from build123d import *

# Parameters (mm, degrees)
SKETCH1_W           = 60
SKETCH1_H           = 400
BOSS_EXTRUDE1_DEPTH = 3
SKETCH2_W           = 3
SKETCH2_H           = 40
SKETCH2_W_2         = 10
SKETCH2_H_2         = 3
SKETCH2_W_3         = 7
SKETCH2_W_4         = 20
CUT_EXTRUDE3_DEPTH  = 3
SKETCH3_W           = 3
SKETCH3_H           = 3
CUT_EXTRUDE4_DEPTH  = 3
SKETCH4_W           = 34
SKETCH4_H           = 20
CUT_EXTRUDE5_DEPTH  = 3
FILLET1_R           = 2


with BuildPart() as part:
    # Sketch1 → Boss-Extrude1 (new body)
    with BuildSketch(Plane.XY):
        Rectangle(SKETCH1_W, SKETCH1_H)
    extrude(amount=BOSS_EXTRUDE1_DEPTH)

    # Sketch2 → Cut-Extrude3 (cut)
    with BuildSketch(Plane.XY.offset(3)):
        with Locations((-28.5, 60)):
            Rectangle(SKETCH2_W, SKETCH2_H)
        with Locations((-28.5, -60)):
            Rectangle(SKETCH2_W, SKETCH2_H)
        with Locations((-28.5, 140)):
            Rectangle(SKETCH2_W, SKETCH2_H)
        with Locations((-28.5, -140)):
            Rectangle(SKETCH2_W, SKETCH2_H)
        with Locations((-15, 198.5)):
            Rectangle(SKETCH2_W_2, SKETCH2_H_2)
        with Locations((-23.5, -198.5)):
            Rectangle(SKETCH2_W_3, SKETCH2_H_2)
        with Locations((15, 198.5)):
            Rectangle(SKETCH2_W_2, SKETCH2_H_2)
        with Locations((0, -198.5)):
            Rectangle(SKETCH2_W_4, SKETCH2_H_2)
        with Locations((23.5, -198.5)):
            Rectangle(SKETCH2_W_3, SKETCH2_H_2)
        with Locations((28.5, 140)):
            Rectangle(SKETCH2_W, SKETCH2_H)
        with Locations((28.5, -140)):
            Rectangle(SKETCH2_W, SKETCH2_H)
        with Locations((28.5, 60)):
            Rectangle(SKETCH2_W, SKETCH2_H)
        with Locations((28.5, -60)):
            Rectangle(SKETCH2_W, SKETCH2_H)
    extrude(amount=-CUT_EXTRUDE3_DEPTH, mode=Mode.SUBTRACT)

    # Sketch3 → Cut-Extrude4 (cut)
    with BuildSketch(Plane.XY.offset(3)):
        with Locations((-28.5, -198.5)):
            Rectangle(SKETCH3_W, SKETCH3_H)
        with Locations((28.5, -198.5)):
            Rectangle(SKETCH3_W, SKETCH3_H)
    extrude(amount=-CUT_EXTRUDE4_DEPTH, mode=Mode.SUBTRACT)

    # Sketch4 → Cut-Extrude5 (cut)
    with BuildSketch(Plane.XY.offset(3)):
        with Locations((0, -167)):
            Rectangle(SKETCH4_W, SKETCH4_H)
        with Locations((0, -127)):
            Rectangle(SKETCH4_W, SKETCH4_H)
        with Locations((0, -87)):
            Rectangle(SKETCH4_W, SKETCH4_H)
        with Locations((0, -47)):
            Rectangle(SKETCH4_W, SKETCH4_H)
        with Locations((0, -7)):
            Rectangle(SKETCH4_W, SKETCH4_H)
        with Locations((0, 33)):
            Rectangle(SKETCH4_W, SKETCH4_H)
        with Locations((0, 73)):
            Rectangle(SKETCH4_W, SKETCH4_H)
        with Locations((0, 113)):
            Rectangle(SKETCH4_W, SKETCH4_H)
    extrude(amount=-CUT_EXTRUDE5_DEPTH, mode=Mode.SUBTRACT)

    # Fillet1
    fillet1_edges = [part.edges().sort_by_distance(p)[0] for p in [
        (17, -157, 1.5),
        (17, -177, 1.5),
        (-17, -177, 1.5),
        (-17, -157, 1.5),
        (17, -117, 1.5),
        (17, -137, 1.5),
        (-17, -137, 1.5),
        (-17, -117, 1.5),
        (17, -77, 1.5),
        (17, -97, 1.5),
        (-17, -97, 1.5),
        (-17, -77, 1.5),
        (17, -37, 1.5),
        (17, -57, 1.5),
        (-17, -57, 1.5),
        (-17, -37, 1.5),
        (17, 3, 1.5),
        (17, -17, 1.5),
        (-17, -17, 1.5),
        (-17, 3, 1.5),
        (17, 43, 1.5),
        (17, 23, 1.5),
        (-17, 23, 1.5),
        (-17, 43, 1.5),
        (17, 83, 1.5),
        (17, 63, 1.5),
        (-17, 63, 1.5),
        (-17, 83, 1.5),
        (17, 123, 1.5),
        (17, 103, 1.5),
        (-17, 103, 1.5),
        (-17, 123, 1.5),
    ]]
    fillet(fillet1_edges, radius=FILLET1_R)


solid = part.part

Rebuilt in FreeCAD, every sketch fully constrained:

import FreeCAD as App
import Part
import Sketcher
Q = App.Units.Quantity


def edges_at(feature, points):
    """Names of the edges that pass closest to the given points."""
    edges = feature.Shape.Edges
    near = lambda p: min(range(len(edges)), key=lambda i: edges[i].distToShape(Part.Vertex(*p))[0])
    return sorted({f"Edge{near(p) + 1}" for p in points})

doc = App.newDocument("Part")
body = doc.addObject("PartDesign::Body", "Body")

sketch1 = body.newObject("Sketcher::SketchObject", "Sketch")
sketch1.AttachmentSupport = (doc.getObject("XY_Plane"), [""])
sketch1.MapMode = "FlatFace"
sketch1.addGeometry(Part.LineSegment(App.Vector(-30, 200, 0), App.Vector(-30, -200, 0)), False)
sketch1.addGeometry(Part.LineSegment(App.Vector(-30, -200, 0), App.Vector(30, -200, 0)), False)
sketch1.addGeometry(Part.LineSegment(App.Vector(30, -200, 0), App.Vector(30, 200, 0)), False)
sketch1.addGeometry(Part.LineSegment(App.Vector(30, 200, 0), App.Vector(-30, 200, 0)), False)
sketch1.addConstraint(Sketcher.Constraint("Coincident", 0, 2, 1, 1))
sketch1.addConstraint(Sketcher.Constraint("Coincident", 1, 2, 2, 1))
sketch1.addConstraint(Sketcher.Constraint("Coincident", 2, 2, 3, 1))
sketch1.addConstraint(Sketcher.Constraint("Coincident", 3, 2, 0, 1))
sketch1.addConstraint(Sketcher.Constraint("Vertical", 0))
sketch1.addConstraint(Sketcher.Constraint("Horizontal", 1))
sketch1.addConstraint(Sketcher.Constraint("Vertical", 2))
sketch1.addConstraint(Sketcher.Constraint("Horizontal", 3))
sketch1.addConstraint(Sketcher.Constraint("Symmetric", 0, 2, 2, 2, -1, 1))
sketch1.addConstraint(Sketcher.Constraint("DistanceX", 1, 1, 1, 2, Q("60 mm")))
sketch1.addConstraint(Sketcher.Constraint("DistanceY", 0, 2, 0, 1, Q("400 mm")))
pad1 = body.newObject("PartDesign::Pad", "Pad")
pad1.Profile = sketch1
pad1.Length = 3

sketch2 = body.newObject("Sketcher::SketchObject", "Sketch001")
sketch2.AttachmentSupport = (doc.getObject("XY_Plane"), [""])
sketch2.MapMode = "FlatFace"
sketch2.AttachmentOffset = App.Placement(App.Vector(0, 0, 3), App.Rotation())
sketch2.addGeometry(Part.LineSegment(App.Vector(-30, 80, 0), App.Vector(-30, 40, 0)), False)
sketch2.addGeometry(Part.LineSegment(App.Vector(-30, 40, 0), App.Vector(-27, 40, 0)), False)
sketch2.addGeometry(Part.LineSegment(App.Vector(-27, 40, 0), App.Vector(-27, 80, 0)), False)
sketch2.addGeometry(Part.LineSegment(App.Vector(-27, 80, 0), App.Vector(-30, 80, 0)), False)
sketch2.addGeometry(Part.LineSegment(App.Vector(-30, -40, 0), App.Vector(-30, -80, 0)), False)
sketch2.addGeometry(Part.LineSegment(App.Vector(-30, -80, 0), App.Vector(-27, -80, 0)), False)
sketch2.addGeometry(Part.LineSegment(App.Vector(-27, -80, 0), App.Vector(-27, -40, 0)), False)
sketch2.addGeometry(Part.LineSegment(App.Vector(-27, -40, 0), App.Vector(-30, -40, 0)), False)
sketch2.addGeometry(Part.LineSegment(App.Vector(-30, 160, 0), App.Vector(-30, 120, 0)), False)
sketch2.addGeometry(Part.LineSegment(App.Vector(-30, 120, 0), App.Vector(-27, 120, 0)), False)
sketch2.addGeometry(Part.LineSegment(App.Vector(-27, 120, 0), App.Vector(-27, 160, 0)), False)
sketch2.addGeometry(Part.LineSegment(App.Vector(-27, 160, 0), App.Vector(-30, 160, 0)), False)
sketch2.addGeometry(Part.LineSegment(App.Vector(-30, -120, 0), App.Vector(-30, -160, 0)), False)
sketch2.addGeometry(Part.LineSegment(App.Vector(-30, -160, 0), App.Vector(-27, -160, 0)), False)
sketch2.addGeometry(Part.LineSegment(App.Vector(-27, -160, 0), App.Vector(-27, -120, 0)), False)
sketch2.addGeometry(Part.LineSegment(App.Vector(-27, -120, 0), App.Vector(-30, -120, 0)), False)
sketch2.addGeometry(Part.LineSegment(App.Vector(-20, 200, 0), App.Vector(-20, 197, 0)), False)
sketch2.addGeometry(Part.LineSegment(App.Vector(-20, 197, 0), App.Vector(-10, 197, 0)), False)
sketch2.addGeometry(Part.LineSegment(App.Vector(-10, 197, 0), App.Vector(-10, 200, 0)), False)
sketch2.addGeometry(Part.LineSegment(App.Vector(-10, 200, 0), App.Vector(-20, 200, 0)), False)
sketch2.addGeometry(Part.LineSegment(App.Vector(-27, -197, 0), App.Vector(-27, -200, 0)), False)
sketch2.addGeometry(Part.LineSegment(App.Vector(-27, -200, 0), App.Vector(-20, -200, 0)), False)
sketch2.addGeometry(Part.LineSegment(App.Vector(-20, -200, 0), App.Vector(-20, -197, 0)), False)
sketch2.addGeometry(Part.LineSegment(App.Vector(-20, -197, 0), App.Vector(-27, -197, 0)), False)
sketch2.addGeometry(Part.LineSegment(App.Vector(10, 200, 0), App.Vector(10, 197, 0)), False)
sketch2.addGeometry(Part.LineSegment(App.Vector(10, 197, 0), App.Vector(20, 197, 0)), False)
sketch2.addGeometry(Part.LineSegment(App.Vector(20, 197, 0), App.Vector(20, 200, 0)), False)
sketch2.addGeometry(Part.LineSegment(App.Vector(20, 200, 0), App.Vector(10, 200, 0)), False)
sketch2.addGeometry(Part.LineSegment(App.Vector(-10, -197, 0), App.Vector(-10, -200, 0)), False)
sketch2.addGeometry(Part.LineSegment(App.Vector(-10, -200, 0), App.Vector(10, -200, 0)), False)
sketch2.addGeometry(Part.LineSegment(App.Vector(10, -200, 0), App.Vector(10, -197, 0)), False)
sketch2.addGeometry(Part.LineSegment(App.Vector(10, -197, 0), App.Vector(-10, -197, 0)), False)
sketch2.addGeometry(Part.LineSegment(App.Vector(20, -197, 0), App.Vector(20, -200, 0)), False)
sketch2.addGeometry(Part.LineSegment(App.Vector(20, -200, 0), App.Vector(27, -200, 0)), False)
sketch2.addGeometry(Part.LineSegment(App.Vector(27, -200, 0), App.Vector(27, -197, 0)), False)
sketch2.addGeometry(Part.LineSegment(App.Vector(27, -197, 0), App.Vector(20, -197, 0)), False)
sketch2.addGeometry(Part.LineSegment(App.Vector(27, 160, 0), App.Vector(27, 120, 0)), False)
sketch2.addGeometry(Part.LineSegment(App.Vector(27, 120, 0), App.Vector(30, 120, 0)), False)
sketch2.addGeometry(Part.LineSegment(App.Vector(30, 120, 0), App.Vector(30, 160, 0)), False)
sketch2.addGeometry(Part.LineSegment(App.Vector(30, 160, 0), App.Vector(27, 160, 0)), False)
sketch2.addGeometry(Part.LineSegment(App.Vector(27, -120, 0), App.Vector(27, -160, 0)), False)
sketch2.addGeometry(Part.LineSegment(App.Vector(27, -160, 0), App.Vector(30, -160, 0)), False)
sketch2.addGeometry(Part.LineSegment(App.Vector(30, -160, 0), App.Vector(30, -120, 0)), False)
sketch2.addGeometry(Part.LineSegment(App.Vector(30, -120, 0), App.Vector(27, -120, 0)), False)
sketch2.addGeometry(Part.LineSegment(App.Vector(27, 80, 0), App.Vector(27, 40, 0)), False)
sketch2.addGeometry(Part.LineSegment(App.Vector(27, 40, 0), App.Vector(30, 40, 0)), False)
sketch2.addGeometry(Part.LineSegment(App.Vector(30, 40, 0), App.Vector(30, 80, 0)), False)
sketch2.addGeometry(Part.LineSegment(App.Vector(30, 80, 0), App.Vector(27, 80, 0)), False)
sketch2.addGeometry(Part.LineSegment(App.Vector(27, -40, 0), App.Vector(27, -80, 0)), False)
sketch2.addGeometry(Part.LineSegment(App.Vector(27, -80, 0), App.Vector(30, -80, 0)), False)
sketch2.addGeometry(Part.LineSegment(App.Vector(30, -80, 0), App.Vector(30, -40, 0)), False)
sketch2.addGeometry(Part.LineSegment(App.Vector(30, -40, 0), App.Vector(27, -40, 0)), False)
sketch2.addConstraint(Sketcher.Constraint("Coincident", 0, 2, 1, 1))
sketch2.addConstraint(Sketcher.Constraint("Coincident", 1, 2, 2, 1))
sketch2.addConstraint(Sketcher.Constraint("Coincident", 2, 2, 3, 1))
sketch2.addConstraint(Sketcher.Constraint("Coincident", 3, 2, 0, 1))
sketch2.addConstraint(Sketcher.Constraint("Coincident", 4, 2, 5, 1))
sketch2.addConstraint(Sketcher.Constraint("Coincident", 5, 2, 6, 1))
sketch2.addConstraint(Sketcher.Constraint("Coincident", 6, 2, 7, 1))
sketch2.addConstraint(Sketcher.Constraint("Coincident", 7, 2, 4, 1))
sketch2.addConstraint(Sketcher.Constraint("Coincident", 8, 2, 9, 1))
sketch2.addConstraint(Sketcher.Constraint("Coincident", 9, 2, 10, 1))
sketch2.addConstraint(Sketcher.Constraint("Coincident", 10, 2, 11, 1))
sketch2.addConstraint(Sketcher.Constraint("Coincident", 11, 2, 8, 1))
sketch2.addConstraint(Sketcher.Constraint("Coincident", 12, 2, 13, 1))
sketch2.addConstraint(Sketcher.Constraint("Coincident", 13, 2, 14, 1))
sketch2.addConstraint(Sketcher.Constraint("Coincident", 14, 2, 15, 1))
sketch2.addConstraint(Sketcher.Constraint("Coincident", 15, 2, 12, 1))
sketch2.addConstraint(Sketcher.Constraint("Coincident", 16, 2, 17, 1))
sketch2.addConstraint(Sketcher.Constraint("Coincident", 17, 2, 18, 1))
sketch2.addConstraint(Sketcher.Constraint("Coincident", 18, 2, 19, 1))
sketch2.addConstraint(Sketcher.Constraint("Coincident", 19, 2, 16, 1))
sketch2.addConstraint(Sketcher.Constraint("Coincident", 20, 2, 21, 1))
sketch2.addConstraint(Sketcher.Constraint("Coincident", 21, 2, 22, 1))
sketch2.addConstraint(Sketcher.Constraint("Coincident", 22, 2, 23, 1))
sketch2.addConstraint(Sketcher.Constraint("Coincident", 23, 2, 20, 1))
sketch2.addConstraint(Sketcher.Constraint("Coincident", 24, 2, 25, 1))
sketch2.addConstraint(Sketcher.Constraint("Coincident", 25, 2, 26, 1))
sketch2.addConstraint(Sketcher.Constraint("Coincident", 26, 2, 27, 1))
sketch2.addConstraint(Sketcher.Constraint("Coincident", 27, 2, 24, 1))
sketch2.addConstraint(Sketcher.Constraint("Coincident", 28, 2, 29, 1))
sketch2.addConstraint(Sketcher.Constraint("Coincident", 29, 2, 30, 1))
sketch2.addConstraint(Sketcher.Constraint("Coincident", 30, 2, 31, 1))
sketch2.addConstraint(Sketcher.Constraint("Coincident", 31, 2, 28, 1))
sketch2.addConstraint(Sketcher.Constraint("Coincident", 32, 2, 33, 1))
sketch2.addConstraint(Sketcher.Constraint("Coincident", 33, 2, 34, 1))
sketch2.addConstraint(Sketcher.Constraint("Coincident", 34, 2, 35, 1))
sketch2.addConstraint(Sketcher.Constraint("Coincident", 35, 2, 32, 1))
sketch2.addConstraint(Sketcher.Constraint("Coincident", 36, 2, 37, 1))
sketch2.addConstraint(Sketcher.Constraint("Coincident", 37, 2, 38, 1))
sketch2.addConstraint(Sketcher.Constraint("Coincident", 38, 2, 39, 1))
sketch2.addConstraint(Sketcher.Constraint("Coincident", 39, 2, 36, 1))
sketch2.addConstraint(Sketcher.Constraint("Coincident", 40, 2, 41, 1))
sketch2.addConstraint(Sketcher.Constraint("Coincident", 41, 2, 42, 1))
sketch2.addConstraint(Sketcher.Constraint("Coincident", 42, 2, 43, 1))
sketch2.addConstraint(Sketcher.Constraint("Coincident", 43, 2, 40, 1))
sketch2.addConstraint(Sketcher.Constraint("Coincident", 44, 2, 45, 1))
sketch2.addConstraint(Sketcher.Constraint("Coincident", 45, 2, 46, 1))
sketch2.addConstraint(Sketcher.Constraint("Coincident", 46, 2, 47, 1))
sketch2.addConstraint(Sketcher.Constraint("Coincident", 47, 2, 44, 1))
sketch2.addConstraint(Sketcher.Constraint("Coincident", 48, 2, 49, 1))
sketch2.addConstraint(Sketcher.Constraint("Coincident", 49, 2, 50, 1))
sketch2.addConstraint(Sketcher.Constraint("Coincident", 50, 2, 51, 1))
sketch2.addConstraint(Sketcher.Constraint("Coincident", 51, 2, 48, 1))
sketch2.addConstraint(Sketcher.Constraint("Vertical", 0))
sketch2.addConstraint(Sketcher.Constraint("Horizontal", 1))
sketch2.addConstraint(Sketcher.Constraint("Vertical", 2))
sketch2.addConstraint(Sketcher.Constraint("Horizontal", 3))
sketch2.addConstraint(Sketcher.Constraint("Vertical", 4))
sketch2.addConstraint(Sketcher.Constraint("Horizontal", 5))
sketch2.addConstraint(Sketcher.Constraint("Vertical", 6))
sketch2.addConstraint(Sketcher.Constraint("Horizontal", 7))
sketch2.addConstraint(Sketcher.Constraint("Vertical", 8))
sketch2.addConstraint(Sketcher.Constraint("Horizontal", 9))
sketch2.addConstraint(Sketcher.Constraint("Vertical", 10))
sketch2.addConstraint(Sketcher.Constraint("Horizontal", 11))
sketch2.addConstraint(Sketcher.Constraint("Vertical", 12))
sketch2.addConstraint(Sketcher.Constraint("Horizontal", 13))
sketch2.addConstraint(Sketcher.Constraint("Vertical", 14))
sketch2.addConstraint(Sketcher.Constraint("Horizontal", 15))
sketch2.addConstraint(Sketcher.Constraint("Vertical", 16))
sketch2.addConstraint(Sketcher.Constraint("Horizontal", 17))
sketch2.addConstraint(Sketcher.Constraint("Vertical", 18))
sketch2.addConstraint(Sketcher.Constraint("Horizontal", 19))
sketch2.addConstraint(Sketcher.Constraint("Vertical", 20))
sketch2.addConstraint(Sketcher.Constraint("Horizontal", 21))
sketch2.addConstraint(Sketcher.Constraint("Vertical", 22))
sketch2.addConstraint(Sketcher.Constraint("Horizontal", 23))
sketch2.addConstraint(Sketcher.Constraint("Vertical", 24))
sketch2.addConstraint(Sketcher.Constraint("Horizontal", 25))
sketch2.addConstraint(Sketcher.Constraint("Vertical", 26))
sketch2.addConstraint(Sketcher.Constraint("Horizontal", 27))
sketch2.addConstraint(Sketcher.Constraint("Vertical", 28))
sketch2.addConstraint(Sketcher.Constraint("Horizontal", 29))
sketch2.addConstraint(Sketcher.Constraint("Vertical", 30))
sketch2.addConstraint(Sketcher.Constraint("Horizontal", 31))
sketch2.addConstraint(Sketcher.Constraint("Vertical", 32))
sketch2.addConstraint(Sketcher.Constraint("Horizontal", 33))
sketch2.addConstraint(Sketcher.Constraint("Vertical", 34))
sketch2.addConstraint(Sketcher.Constraint("Horizontal", 35))
sketch2.addConstraint(Sketcher.Constraint("Vertical", 36))
sketch2.addConstraint(Sketcher.Constraint("Horizontal", 37))
sketch2.addConstraint(Sketcher.Constraint("Vertical", 38))
sketch2.addConstraint(Sketcher.Constraint("Horizontal", 39))
sketch2.addConstraint(Sketcher.Constraint("Vertical", 40))
sketch2.addConstraint(Sketcher.Constraint("Horizontal", 41))
sketch2.addConstraint(Sketcher.Constraint("Vertical", 42))
sketch2.addConstraint(Sketcher.Constraint("Horizontal", 43))
sketch2.addConstraint(Sketcher.Constraint("Vertical", 44))
sketch2.addConstraint(Sketcher.Constraint("Horizontal", 45))
sketch2.addConstraint(Sketcher.Constraint("Vertical", 46))
sketch2.addConstraint(Sketcher.Constraint("Horizontal", 47))
sketch2.addConstraint(Sketcher.Constraint("Vertical", 48))
sketch2.addConstraint(Sketcher.Constraint("Horizontal", 49))
sketch2.addConstraint(Sketcher.Constraint("Vertical", 50))
sketch2.addConstraint(Sketcher.Constraint("Horizontal", 51))
sketch2.addConstraint(Sketcher.Constraint("Symmetric", 22, 2, 25, 2, -1, 1))
sketch2.addConstraint(Sketcher.Constraint("Symmetric", 27, 2, 28, 2, -1, 1))
sketch2.addConstraint(Sketcher.Constraint("Symmetric", 18, 2, 29, 2, -1, 1))
sketch2.addConstraint(Sketcher.Constraint("Symmetric", 19, 2, 32, 2, -1, 1))
sketch2.addConstraint(Sketcher.Constraint("Symmetric", 14, 2, 36, 2, -1, 1))
sketch2.addConstraint(Sketcher.Constraint("Symmetric", 12, 2, 38, 2, -1, 1))
sketch2.addConstraint(Sketcher.Constraint("Symmetric", 10, 2, 40, 2, -1, 1))
sketch2.addConstraint(Sketcher.Constraint("Symmetric", 8, 2, 42, 2, -1, 1))
sketch2.addConstraint(Sketcher.Constraint("Symmetric", 6, 2, 44, 2, -1, 1))
sketch2.addConstraint(Sketcher.Constraint("Symmetric", 4, 2, 46, 2, -1, 1))
sketch2.addConstraint(Sketcher.Constraint("Symmetric", 2, 2, 48, 2, -1, 1))
sketch2.addConstraint(Sketcher.Constraint("Symmetric", 0, 2, 50, 2, -1, 1))
sketch2.addConstraint(Sketcher.Constraint("Symmetric", 17, 2, 24, 2, -2))
sketch2.addConstraint(Sketcher.Constraint("Symmetric", 21, 2, 32, 2, -2))
sketch2.addConstraint(Sketcher.Constraint("Symmetric", 23, 2, 34, 2, -2))
sketch2.addConstraint(Sketcher.Constraint("Symmetric", 9, 2, 36, 2, -2))
sketch2.addConstraint(Sketcher.Constraint("Symmetric", 11, 2, 38, 2, -2))
sketch2.addConstraint(Sketcher.Constraint("Symmetric", 1, 2, 44, 2, -2))
sketch2.addConstraint(Sketcher.Constraint("Symmetric", 3, 2, 46, 2, -2))
sketch2.addConstraint(Sketcher.Constraint("Horizontal", 23, 2, 30, 2))
sketch2.addConstraint(Sketcher.Constraint("Vertical", 7, 2, 8, 2))
sketch2.addConstraint(Sketcher.Constraint("Vertical", 6, 2, 9, 2))
sketch2.addConstraint(Sketcher.Constraint("Vertical", 14, 2, 20, 2))
sketch2.addConstraint(Sketcher.Constraint("Equal", 6, 8))
sketch2.addConstraint(Sketcher.Constraint("Equal", 51, 16))
sketch2.addConstraint(Sketcher.Constraint("DistanceX", 1, 1, 1, 2, Q("3 mm")))
sketch2.addConstraint(Sketcher.Constraint("DistanceX", 17, 1, 17, 2, Q("10 mm")))
sketch2.addConstraint(Sketcher.Constraint("DistanceX", 21, 1, 21, 2, Q("7 mm")))
sketch2.addConstraint(Sketcher.Constraint("DistanceX", 29, 1, 29, 2, Q("20 mm")))
sketch2.addConstraint(Sketcher.Constraint("DistanceY", 0, 2, 0, 1, Q("40 mm")))
sketch2.addConstraint(Sketcher.Constraint("DistanceY", -1, 1, 0, 2, Q("40 mm")))
sketch2.addConstraint(Sketcher.Constraint("DistanceY", -1, 1, 8, 2, Q("120 mm")))
sketch2.addConstraint(Sketcher.Constraint("DistanceY", -1, 1, 16, 2, Q("197 mm")))
pocket1 = body.newObject("PartDesign::Pocket", "Pocket")
pocket1.Profile = sketch2
pocket1.Length = 3

sketch3 = body.newObject("Sketcher::SketchObject", "Sketch002")
sketch3.AttachmentSupport = (doc.getObject("XY_Plane"), [""])
sketch3.MapMode = "FlatFace"
sketch3.AttachmentOffset = App.Placement(App.Vector(0, 0, 3), App.Rotation())
sketch3.addGeometry(Part.LineSegment(App.Vector(-30, -197, 0), App.Vector(-30, -200, 0)), False)
sketch3.addGeometry(Part.LineSegment(App.Vector(-30, -200, 0), App.Vector(-27, -200, 0)), False)
sketch3.addGeometry(Part.LineSegment(App.Vector(-27, -200, 0), App.Vector(-27, -197, 0)), False)
sketch3.addGeometry(Part.LineSegment(App.Vector(-27, -197, 0), App.Vector(-30, -197, 0)), False)
sketch3.addGeometry(Part.LineSegment(App.Vector(27, -197, 0), App.Vector(27, -200, 0)), False)
sketch3.addGeometry(Part.LineSegment(App.Vector(27, -200, 0), App.Vector(30, -200, 0)), False)
sketch3.addGeometry(Part.LineSegment(App.Vector(30, -200, 0), App.Vector(30, -197, 0)), False)
sketch3.addGeometry(Part.LineSegment(App.Vector(30, -197, 0), App.Vector(27, -197, 0)), False)
sketch3.addConstraint(Sketcher.Constraint("Coincident", 0, 2, 1, 1))
sketch3.addConstraint(Sketcher.Constraint("Coincident", 1, 2, 2, 1))
sketch3.addConstraint(Sketcher.Constraint("Coincident", 2, 2, 3, 1))
sketch3.addConstraint(Sketcher.Constraint("Coincident", 3, 2, 0, 1))
sketch3.addConstraint(Sketcher.Constraint("Coincident", 4, 2, 5, 1))
sketch3.addConstraint(Sketcher.Constraint("Coincident", 5, 2, 6, 1))
sketch3.addConstraint(Sketcher.Constraint("Coincident", 6, 2, 7, 1))
sketch3.addConstraint(Sketcher.Constraint("Coincident", 7, 2, 4, 1))
sketch3.addConstraint(Sketcher.Constraint("Vertical", 0))
sketch3.addConstraint(Sketcher.Constraint("Horizontal", 1))
sketch3.addConstraint(Sketcher.Constraint("Vertical", 2))
sketch3.addConstraint(Sketcher.Constraint("Horizontal", 3))
sketch3.addConstraint(Sketcher.Constraint("Vertical", 4))
sketch3.addConstraint(Sketcher.Constraint("Horizontal", 5))
sketch3.addConstraint(Sketcher.Constraint("Vertical", 6))
sketch3.addConstraint(Sketcher.Constraint("Horizontal", 7))
sketch3.addConstraint(Sketcher.Constraint("Symmetric", 1, 2, 4, 2, -2))
sketch3.addConstraint(Sketcher.Constraint("Symmetric", 3, 2, 6, 2, -2))
sketch3.addConstraint(Sketcher.Constraint("Equal", 7, 0))
sketch3.addConstraint(Sketcher.Constraint("DistanceX", 1, 1, 1, 2, Q("3 mm")))
sketch3.addConstraint(Sketcher.Constraint("DistanceX", 0, 2, -1, 1, Q("30 mm")))
sketch3.addConstraint(Sketcher.Constraint("DistanceY", 0, 2, -1, 1, Q("200 mm")))
pocket2 = body.newObject("PartDesign::Pocket", "Pocket001")
pocket2.Profile = sketch3
pocket2.Length = 3

sketch4 = body.newObject("Sketcher::SketchObject", "Sketch003")
sketch4.AttachmentSupport = (doc.getObject("XY_Plane"), [""])
sketch4.MapMode = "FlatFace"
sketch4.AttachmentOffset = App.Placement(App.Vector(0, 0, 3), App.Rotation())
sketch4.addGeometry(Part.LineSegment(App.Vector(-17, -157, 0), App.Vector(-17, -177, 0)), False)
sketch4.addGeometry(Part.LineSegment(App.Vector(-17, -177, 0), App.Vector(17, -177, 0)), False)
sketch4.addGeometry(Part.LineSegment(App.Vector(17, -177, 0), App.Vector(17, -157, 0)), False)
sketch4.addGeometry(Part.LineSegment(App.Vector(17, -157, 0), App.Vector(-17, -157, 0)), False)
sketch4.addGeometry(Part.LineSegment(App.Vector(-17, -117, 0), App.Vector(-17, -137, 0)), False)
sketch4.addGeometry(Part.LineSegment(App.Vector(-17, -137, 0), App.Vector(17, -137, 0)), False)
sketch4.addGeometry(Part.LineSegment(App.Vector(17, -137, 0), App.Vector(17, -117, 0)), False)
sketch4.addGeometry(Part.LineSegment(App.Vector(17, -117, 0), App.Vector(-17, -117, 0)), False)
sketch4.addGeometry(Part.LineSegment(App.Vector(-17, -77, 0), App.Vector(-17, -97, 0)), False)
sketch4.addGeometry(Part.LineSegment(App.Vector(-17, -97, 0), App.Vector(17, -97, 0)), False)
sketch4.addGeometry(Part.LineSegment(App.Vector(17, -97, 0), App.Vector(17, -77, 0)), False)
sketch4.addGeometry(Part.LineSegment(App.Vector(17, -77, 0), App.Vector(-17, -77, 0)), False)
sketch4.addGeometry(Part.LineSegment(App.Vector(-17, -37, 0), App.Vector(-17, -57, 0)), False)
sketch4.addGeometry(Part.LineSegment(App.Vector(-17, -57, 0), App.Vector(17, -57, 0)), False)
sketch4.addGeometry(Part.LineSegment(App.Vector(17, -57, 0), App.Vector(17, -37, 0)), False)
sketch4.addGeometry(Part.LineSegment(App.Vector(17, -37, 0), App.Vector(-17, -37, 0)), False)
sketch4.addGeometry(Part.LineSegment(App.Vector(-17, 3, 0), App.Vector(-17, -17, 0)), False)
sketch4.addGeometry(Part.LineSegment(App.Vector(-17, -17, 0), App.Vector(17, -17, 0)), False)
sketch4.addGeometry(Part.LineSegment(App.Vector(17, -17, 0), App.Vector(17, 3, 0)), False)
sketch4.addGeometry(Part.LineSegment(App.Vector(17, 3, 0), App.Vector(-17, 3, 0)), False)
sketch4.addGeometry(Part.LineSegment(App.Vector(-17, 43, 0), App.Vector(-17, 23, 0)), False)
sketch4.addGeometry(Part.LineSegment(App.Vector(-17, 23, 0), App.Vector(17, 23, 0)), False)
sketch4.addGeometry(Part.LineSegment(App.Vector(17, 23, 0), App.Vector(17, 43, 0)), False)
sketch4.addGeometry(Part.LineSegment(App.Vector(17, 43, 0), App.Vector(-17, 43, 0)), False)
sketch4.addGeometry(Part.LineSegment(App.Vector(-17, 83, 0), App.Vector(-17, 63, 0)), False)
sketch4.addGeometry(Part.LineSegment(App.Vector(-17, 63, 0), App.Vector(17, 63, 0)), False)
sketch4.addGeometry(Part.LineSegment(App.Vector(17, 63, 0), App.Vector(17, 83, 0)), False)
sketch4.addGeometry(Part.LineSegment(App.Vector(17, 83, 0), App.Vector(-17, 83, 0)), False)
sketch4.addGeometry(Part.LineSegment(App.Vector(-17, 123, 0), App.Vector(-17, 103, 0)), False)
sketch4.addGeometry(Part.LineSegment(App.Vector(-17, 103, 0), App.Vector(17, 103, 0)), False)
sketch4.addGeometry(Part.LineSegment(App.Vector(17, 103, 0), App.Vector(17, 123, 0)), False)
sketch4.addGeometry(Part.LineSegment(App.Vector(17, 123, 0), App.Vector(-17, 123, 0)), False)
sketch4.addConstraint(Sketcher.Constraint("Coincident", 0, 2, 1, 1))
sketch4.addConstraint(Sketcher.Constraint("Coincident", 1, 2, 2, 1))
sketch4.addConstraint(Sketcher.Constraint("Coincident", 2, 2, 3, 1))
sketch4.addConstraint(Sketcher.Constraint("Coincident", 3, 2, 0, 1))
sketch4.addConstraint(Sketcher.Constraint("Coincident", 4, 2, 5, 1))
sketch4.addConstraint(Sketcher.Constraint("Coincident", 5, 2, 6, 1))
sketch4.addConstraint(Sketcher.Constraint("Coincident", 6, 2, 7, 1))
sketch4.addConstraint(Sketcher.Constraint("Coincident", 7, 2, 4, 1))
sketch4.addConstraint(Sketcher.Constraint("Coincident", 8, 2, 9, 1))
sketch4.addConstraint(Sketcher.Constraint("Coincident", 9, 2, 10, 1))
sketch4.addConstraint(Sketcher.Constraint("Coincident", 10, 2, 11, 1))
sketch4.addConstraint(Sketcher.Constraint("Coincident", 11, 2, 8, 1))
sketch4.addConstraint(Sketcher.Constraint("Coincident", 12, 2, 13, 1))
sketch4.addConstraint(Sketcher.Constraint("Coincident", 13, 2, 14, 1))
sketch4.addConstraint(Sketcher.Constraint("Coincident", 14, 2, 15, 1))
sketch4.addConstraint(Sketcher.Constraint("Coincident", 15, 2, 12, 1))
sketch4.addConstraint(Sketcher.Constraint("Coincident", 16, 2, 17, 1))
sketch4.addConstraint(Sketcher.Constraint("Coincident", 17, 2, 18, 1))
sketch4.addConstraint(Sketcher.Constraint("Coincident", 18, 2, 19, 1))
sketch4.addConstraint(Sketcher.Constraint("Coincident", 19, 2, 16, 1))
sketch4.addConstraint(Sketcher.Constraint("Coincident", 20, 2, 21, 1))
sketch4.addConstraint(Sketcher.Constraint("Coincident", 21, 2, 22, 1))
sketch4.addConstraint(Sketcher.Constraint("Coincident", 22, 2, 23, 1))
sketch4.addConstraint(Sketcher.Constraint("Coincident", 23, 2, 20, 1))
sketch4.addConstraint(Sketcher.Constraint("Coincident", 24, 2, 25, 1))
sketch4.addConstraint(Sketcher.Constraint("Coincident", 25, 2, 26, 1))
sketch4.addConstraint(Sketcher.Constraint("Coincident", 26, 2, 27, 1))
sketch4.addConstraint(Sketcher.Constraint("Coincident", 27, 2, 24, 1))
sketch4.addConstraint(Sketcher.Constraint("Coincident", 28, 2, 29, 1))
sketch4.addConstraint(Sketcher.Constraint("Coincident", 29, 2, 30, 1))
sketch4.addConstraint(Sketcher.Constraint("Coincident", 30, 2, 31, 1))
sketch4.addConstraint(Sketcher.Constraint("Coincident", 31, 2, 28, 1))
sketch4.addConstraint(Sketcher.Constraint("Vertical", 0))
sketch4.addConstraint(Sketcher.Constraint("Horizontal", 1))
sketch4.addConstraint(Sketcher.Constraint("Vertical", 2))
sketch4.addConstraint(Sketcher.Constraint("Horizontal", 3))
sketch4.addConstraint(Sketcher.Constraint("Vertical", 4))
sketch4.addConstraint(Sketcher.Constraint("Horizontal", 5))
sketch4.addConstraint(Sketcher.Constraint("Vertical", 6))
sketch4.addConstraint(Sketcher.Constraint("Horizontal", 7))
sketch4.addConstraint(Sketcher.Constraint("Vertical", 8))
sketch4.addConstraint(Sketcher.Constraint("Horizontal", 9))
sketch4.addConstraint(Sketcher.Constraint("Vertical", 10))
sketch4.addConstraint(Sketcher.Constraint("Horizontal", 11))
sketch4.addConstraint(Sketcher.Constraint("Vertical", 12))
sketch4.addConstraint(Sketcher.Constraint("Horizontal", 13))
sketch4.addConstraint(Sketcher.Constraint("Vertical", 14))
sketch4.addConstraint(Sketcher.Constraint("Horizontal", 15))
sketch4.addConstraint(Sketcher.Constraint("Vertical", 16))
sketch4.addConstraint(Sketcher.Constraint("Horizontal", 17))
sketch4.addConstraint(Sketcher.Constraint("Vertical", 18))
sketch4.addConstraint(Sketcher.Constraint("Horizontal", 19))
sketch4.addConstraint(Sketcher.Constraint("Vertical", 20))
sketch4.addConstraint(Sketcher.Constraint("Horizontal", 21))
sketch4.addConstraint(Sketcher.Constraint("Vertical", 22))
sketch4.addConstraint(Sketcher.Constraint("Horizontal", 23))
sketch4.addConstraint(Sketcher.Constraint("Vertical", 24))
sketch4.addConstraint(Sketcher.Constraint("Horizontal", 25))
sketch4.addConstraint(Sketcher.Constraint("Vertical", 26))
sketch4.addConstraint(Sketcher.Constraint("Horizontal", 27))
sketch4.addConstraint(Sketcher.Constraint("Vertical", 28))
sketch4.addConstraint(Sketcher.Constraint("Horizontal", 29))
sketch4.addConstraint(Sketcher.Constraint("Vertical", 30))
sketch4.addConstraint(Sketcher.Constraint("Horizontal", 31))
sketch4.addConstraint(Sketcher.Constraint("Vertical", 3, 2, 4, 2))
sketch4.addConstraint(Sketcher.Constraint("Vertical", 2, 2, 5, 2))
sketch4.addConstraint(Sketcher.Constraint("Vertical", 7, 2, 8, 2))
sketch4.addConstraint(Sketcher.Constraint("Vertical", 6, 2, 9, 2))
sketch4.addConstraint(Sketcher.Constraint("Vertical", 11, 2, 12, 2))
sketch4.addConstraint(Sketcher.Constraint("Vertical", 10, 2, 13, 2))
sketch4.addConstraint(Sketcher.Constraint("Vertical", 15, 2, 16, 2))
sketch4.addConstraint(Sketcher.Constraint("Vertical", 14, 2, 17, 2))
sketch4.addConstraint(Sketcher.Constraint("Vertical", 19, 2, 20, 2))
sketch4.addConstraint(Sketcher.Constraint("Vertical", 18, 2, 21, 2))
sketch4.addConstraint(Sketcher.Constraint("Vertical", 23, 2, 24, 2))
sketch4.addConstraint(Sketcher.Constraint("Vertical", 22, 2, 25, 2))
sketch4.addConstraint(Sketcher.Constraint("Vertical", 27, 2, 28, 2))
sketch4.addConstraint(Sketcher.Constraint("Vertical", 26, 2, 29, 2))
sketch4.addConstraint(Sketcher.Constraint("Equal", 2, 4))
sketch4.addConstraint(Sketcher.Constraint("Equal", 6, 8))
sketch4.addConstraint(Sketcher.Constraint("Equal", 10, 12))
sketch4.addConstraint(Sketcher.Constraint("Equal", 14, 16))
sketch4.addConstraint(Sketcher.Constraint("Equal", 18, 20))
sketch4.addConstraint(Sketcher.Constraint("Equal", 22, 24))
sketch4.addConstraint(Sketcher.Constraint("Equal", 26, 28))
sketch4.addConstraint(Sketcher.Constraint("DistanceX", 1, 1, 1, 2, Q("34 mm")))
sketch4.addConstraint(Sketcher.Constraint("DistanceY", 0, 2, 0, 1, Q("20 mm")))
sketch4.addConstraint(Sketcher.Constraint("DistanceX", 0, 2, -1, 1, Q("17 mm")))
sketch4.addConstraint(Sketcher.Constraint("DistanceY", 0, 2, -1, 1, Q("177 mm")))
sketch4.addConstraint(Sketcher.Constraint("DistanceY", 4, 2, -1, 1, Q("137 mm")))
sketch4.addConstraint(Sketcher.Constraint("DistanceY", 8, 2, -1, 1, Q("97 mm")))
sketch4.addConstraint(Sketcher.Constraint("DistanceY", 12, 2, -1, 1, Q("57 mm")))
sketch4.addConstraint(Sketcher.Constraint("DistanceY", 16, 2, -1, 1, Q("17 mm")))
sketch4.addConstraint(Sketcher.Constraint("DistanceY", -1, 1, 20, 2, Q("23 mm")))
sketch4.addConstraint(Sketcher.Constraint("DistanceY", -1, 1, 24, 2, Q("63 mm")))
sketch4.addConstraint(Sketcher.Constraint("DistanceY", -1, 1, 28, 2, Q("103 mm")))
pocket3 = body.newObject("PartDesign::Pocket", "Pocket002")
pocket3.Profile = sketch4
pocket3.Length = 3
doc.recompute()

fillet = body.newObject("PartDesign::Fillet", "Fillet")
fillet.Base = (pocket3, edges_at(pocket3, [
    (17, -157, 1.5),
    (17, -177, 1.5),
    (-17, -177, 1.5),
    (-17, -157, 1.5),
    (17, -117, 1.5),
    (17, -137, 1.5),
    (-17, -137, 1.5),
    (-17, -117, 1.5),
    (17, -77, 1.5),
    (17, -97, 1.5),
    (-17, -97, 1.5),
    (-17, -77, 1.5),
    (17, -37, 1.5),
    (17, -57, 1.5),
    (-17, -57, 1.5),
    (-17, -37, 1.5),
    (17, 3, 1.5),
    (17, -17, 1.5),
    (-17, -17, 1.5),
    (-17, 3, 1.5),
    (17, 43, 1.5),
    (17, 23, 1.5),
    (-17, 23, 1.5),
    (-17, 43, 1.5),
    (17, 83, 1.5),
    (17, 63, 1.5),
    (-17, 63, 1.5),
    (-17, 83, 1.5),
    (17, 123, 1.5),
    (17, 103, 1.5),
    (-17, 103, 1.5),
    (-17, 123, 1.5),
]))
fillet.Radius = 2

doc.recompute()
